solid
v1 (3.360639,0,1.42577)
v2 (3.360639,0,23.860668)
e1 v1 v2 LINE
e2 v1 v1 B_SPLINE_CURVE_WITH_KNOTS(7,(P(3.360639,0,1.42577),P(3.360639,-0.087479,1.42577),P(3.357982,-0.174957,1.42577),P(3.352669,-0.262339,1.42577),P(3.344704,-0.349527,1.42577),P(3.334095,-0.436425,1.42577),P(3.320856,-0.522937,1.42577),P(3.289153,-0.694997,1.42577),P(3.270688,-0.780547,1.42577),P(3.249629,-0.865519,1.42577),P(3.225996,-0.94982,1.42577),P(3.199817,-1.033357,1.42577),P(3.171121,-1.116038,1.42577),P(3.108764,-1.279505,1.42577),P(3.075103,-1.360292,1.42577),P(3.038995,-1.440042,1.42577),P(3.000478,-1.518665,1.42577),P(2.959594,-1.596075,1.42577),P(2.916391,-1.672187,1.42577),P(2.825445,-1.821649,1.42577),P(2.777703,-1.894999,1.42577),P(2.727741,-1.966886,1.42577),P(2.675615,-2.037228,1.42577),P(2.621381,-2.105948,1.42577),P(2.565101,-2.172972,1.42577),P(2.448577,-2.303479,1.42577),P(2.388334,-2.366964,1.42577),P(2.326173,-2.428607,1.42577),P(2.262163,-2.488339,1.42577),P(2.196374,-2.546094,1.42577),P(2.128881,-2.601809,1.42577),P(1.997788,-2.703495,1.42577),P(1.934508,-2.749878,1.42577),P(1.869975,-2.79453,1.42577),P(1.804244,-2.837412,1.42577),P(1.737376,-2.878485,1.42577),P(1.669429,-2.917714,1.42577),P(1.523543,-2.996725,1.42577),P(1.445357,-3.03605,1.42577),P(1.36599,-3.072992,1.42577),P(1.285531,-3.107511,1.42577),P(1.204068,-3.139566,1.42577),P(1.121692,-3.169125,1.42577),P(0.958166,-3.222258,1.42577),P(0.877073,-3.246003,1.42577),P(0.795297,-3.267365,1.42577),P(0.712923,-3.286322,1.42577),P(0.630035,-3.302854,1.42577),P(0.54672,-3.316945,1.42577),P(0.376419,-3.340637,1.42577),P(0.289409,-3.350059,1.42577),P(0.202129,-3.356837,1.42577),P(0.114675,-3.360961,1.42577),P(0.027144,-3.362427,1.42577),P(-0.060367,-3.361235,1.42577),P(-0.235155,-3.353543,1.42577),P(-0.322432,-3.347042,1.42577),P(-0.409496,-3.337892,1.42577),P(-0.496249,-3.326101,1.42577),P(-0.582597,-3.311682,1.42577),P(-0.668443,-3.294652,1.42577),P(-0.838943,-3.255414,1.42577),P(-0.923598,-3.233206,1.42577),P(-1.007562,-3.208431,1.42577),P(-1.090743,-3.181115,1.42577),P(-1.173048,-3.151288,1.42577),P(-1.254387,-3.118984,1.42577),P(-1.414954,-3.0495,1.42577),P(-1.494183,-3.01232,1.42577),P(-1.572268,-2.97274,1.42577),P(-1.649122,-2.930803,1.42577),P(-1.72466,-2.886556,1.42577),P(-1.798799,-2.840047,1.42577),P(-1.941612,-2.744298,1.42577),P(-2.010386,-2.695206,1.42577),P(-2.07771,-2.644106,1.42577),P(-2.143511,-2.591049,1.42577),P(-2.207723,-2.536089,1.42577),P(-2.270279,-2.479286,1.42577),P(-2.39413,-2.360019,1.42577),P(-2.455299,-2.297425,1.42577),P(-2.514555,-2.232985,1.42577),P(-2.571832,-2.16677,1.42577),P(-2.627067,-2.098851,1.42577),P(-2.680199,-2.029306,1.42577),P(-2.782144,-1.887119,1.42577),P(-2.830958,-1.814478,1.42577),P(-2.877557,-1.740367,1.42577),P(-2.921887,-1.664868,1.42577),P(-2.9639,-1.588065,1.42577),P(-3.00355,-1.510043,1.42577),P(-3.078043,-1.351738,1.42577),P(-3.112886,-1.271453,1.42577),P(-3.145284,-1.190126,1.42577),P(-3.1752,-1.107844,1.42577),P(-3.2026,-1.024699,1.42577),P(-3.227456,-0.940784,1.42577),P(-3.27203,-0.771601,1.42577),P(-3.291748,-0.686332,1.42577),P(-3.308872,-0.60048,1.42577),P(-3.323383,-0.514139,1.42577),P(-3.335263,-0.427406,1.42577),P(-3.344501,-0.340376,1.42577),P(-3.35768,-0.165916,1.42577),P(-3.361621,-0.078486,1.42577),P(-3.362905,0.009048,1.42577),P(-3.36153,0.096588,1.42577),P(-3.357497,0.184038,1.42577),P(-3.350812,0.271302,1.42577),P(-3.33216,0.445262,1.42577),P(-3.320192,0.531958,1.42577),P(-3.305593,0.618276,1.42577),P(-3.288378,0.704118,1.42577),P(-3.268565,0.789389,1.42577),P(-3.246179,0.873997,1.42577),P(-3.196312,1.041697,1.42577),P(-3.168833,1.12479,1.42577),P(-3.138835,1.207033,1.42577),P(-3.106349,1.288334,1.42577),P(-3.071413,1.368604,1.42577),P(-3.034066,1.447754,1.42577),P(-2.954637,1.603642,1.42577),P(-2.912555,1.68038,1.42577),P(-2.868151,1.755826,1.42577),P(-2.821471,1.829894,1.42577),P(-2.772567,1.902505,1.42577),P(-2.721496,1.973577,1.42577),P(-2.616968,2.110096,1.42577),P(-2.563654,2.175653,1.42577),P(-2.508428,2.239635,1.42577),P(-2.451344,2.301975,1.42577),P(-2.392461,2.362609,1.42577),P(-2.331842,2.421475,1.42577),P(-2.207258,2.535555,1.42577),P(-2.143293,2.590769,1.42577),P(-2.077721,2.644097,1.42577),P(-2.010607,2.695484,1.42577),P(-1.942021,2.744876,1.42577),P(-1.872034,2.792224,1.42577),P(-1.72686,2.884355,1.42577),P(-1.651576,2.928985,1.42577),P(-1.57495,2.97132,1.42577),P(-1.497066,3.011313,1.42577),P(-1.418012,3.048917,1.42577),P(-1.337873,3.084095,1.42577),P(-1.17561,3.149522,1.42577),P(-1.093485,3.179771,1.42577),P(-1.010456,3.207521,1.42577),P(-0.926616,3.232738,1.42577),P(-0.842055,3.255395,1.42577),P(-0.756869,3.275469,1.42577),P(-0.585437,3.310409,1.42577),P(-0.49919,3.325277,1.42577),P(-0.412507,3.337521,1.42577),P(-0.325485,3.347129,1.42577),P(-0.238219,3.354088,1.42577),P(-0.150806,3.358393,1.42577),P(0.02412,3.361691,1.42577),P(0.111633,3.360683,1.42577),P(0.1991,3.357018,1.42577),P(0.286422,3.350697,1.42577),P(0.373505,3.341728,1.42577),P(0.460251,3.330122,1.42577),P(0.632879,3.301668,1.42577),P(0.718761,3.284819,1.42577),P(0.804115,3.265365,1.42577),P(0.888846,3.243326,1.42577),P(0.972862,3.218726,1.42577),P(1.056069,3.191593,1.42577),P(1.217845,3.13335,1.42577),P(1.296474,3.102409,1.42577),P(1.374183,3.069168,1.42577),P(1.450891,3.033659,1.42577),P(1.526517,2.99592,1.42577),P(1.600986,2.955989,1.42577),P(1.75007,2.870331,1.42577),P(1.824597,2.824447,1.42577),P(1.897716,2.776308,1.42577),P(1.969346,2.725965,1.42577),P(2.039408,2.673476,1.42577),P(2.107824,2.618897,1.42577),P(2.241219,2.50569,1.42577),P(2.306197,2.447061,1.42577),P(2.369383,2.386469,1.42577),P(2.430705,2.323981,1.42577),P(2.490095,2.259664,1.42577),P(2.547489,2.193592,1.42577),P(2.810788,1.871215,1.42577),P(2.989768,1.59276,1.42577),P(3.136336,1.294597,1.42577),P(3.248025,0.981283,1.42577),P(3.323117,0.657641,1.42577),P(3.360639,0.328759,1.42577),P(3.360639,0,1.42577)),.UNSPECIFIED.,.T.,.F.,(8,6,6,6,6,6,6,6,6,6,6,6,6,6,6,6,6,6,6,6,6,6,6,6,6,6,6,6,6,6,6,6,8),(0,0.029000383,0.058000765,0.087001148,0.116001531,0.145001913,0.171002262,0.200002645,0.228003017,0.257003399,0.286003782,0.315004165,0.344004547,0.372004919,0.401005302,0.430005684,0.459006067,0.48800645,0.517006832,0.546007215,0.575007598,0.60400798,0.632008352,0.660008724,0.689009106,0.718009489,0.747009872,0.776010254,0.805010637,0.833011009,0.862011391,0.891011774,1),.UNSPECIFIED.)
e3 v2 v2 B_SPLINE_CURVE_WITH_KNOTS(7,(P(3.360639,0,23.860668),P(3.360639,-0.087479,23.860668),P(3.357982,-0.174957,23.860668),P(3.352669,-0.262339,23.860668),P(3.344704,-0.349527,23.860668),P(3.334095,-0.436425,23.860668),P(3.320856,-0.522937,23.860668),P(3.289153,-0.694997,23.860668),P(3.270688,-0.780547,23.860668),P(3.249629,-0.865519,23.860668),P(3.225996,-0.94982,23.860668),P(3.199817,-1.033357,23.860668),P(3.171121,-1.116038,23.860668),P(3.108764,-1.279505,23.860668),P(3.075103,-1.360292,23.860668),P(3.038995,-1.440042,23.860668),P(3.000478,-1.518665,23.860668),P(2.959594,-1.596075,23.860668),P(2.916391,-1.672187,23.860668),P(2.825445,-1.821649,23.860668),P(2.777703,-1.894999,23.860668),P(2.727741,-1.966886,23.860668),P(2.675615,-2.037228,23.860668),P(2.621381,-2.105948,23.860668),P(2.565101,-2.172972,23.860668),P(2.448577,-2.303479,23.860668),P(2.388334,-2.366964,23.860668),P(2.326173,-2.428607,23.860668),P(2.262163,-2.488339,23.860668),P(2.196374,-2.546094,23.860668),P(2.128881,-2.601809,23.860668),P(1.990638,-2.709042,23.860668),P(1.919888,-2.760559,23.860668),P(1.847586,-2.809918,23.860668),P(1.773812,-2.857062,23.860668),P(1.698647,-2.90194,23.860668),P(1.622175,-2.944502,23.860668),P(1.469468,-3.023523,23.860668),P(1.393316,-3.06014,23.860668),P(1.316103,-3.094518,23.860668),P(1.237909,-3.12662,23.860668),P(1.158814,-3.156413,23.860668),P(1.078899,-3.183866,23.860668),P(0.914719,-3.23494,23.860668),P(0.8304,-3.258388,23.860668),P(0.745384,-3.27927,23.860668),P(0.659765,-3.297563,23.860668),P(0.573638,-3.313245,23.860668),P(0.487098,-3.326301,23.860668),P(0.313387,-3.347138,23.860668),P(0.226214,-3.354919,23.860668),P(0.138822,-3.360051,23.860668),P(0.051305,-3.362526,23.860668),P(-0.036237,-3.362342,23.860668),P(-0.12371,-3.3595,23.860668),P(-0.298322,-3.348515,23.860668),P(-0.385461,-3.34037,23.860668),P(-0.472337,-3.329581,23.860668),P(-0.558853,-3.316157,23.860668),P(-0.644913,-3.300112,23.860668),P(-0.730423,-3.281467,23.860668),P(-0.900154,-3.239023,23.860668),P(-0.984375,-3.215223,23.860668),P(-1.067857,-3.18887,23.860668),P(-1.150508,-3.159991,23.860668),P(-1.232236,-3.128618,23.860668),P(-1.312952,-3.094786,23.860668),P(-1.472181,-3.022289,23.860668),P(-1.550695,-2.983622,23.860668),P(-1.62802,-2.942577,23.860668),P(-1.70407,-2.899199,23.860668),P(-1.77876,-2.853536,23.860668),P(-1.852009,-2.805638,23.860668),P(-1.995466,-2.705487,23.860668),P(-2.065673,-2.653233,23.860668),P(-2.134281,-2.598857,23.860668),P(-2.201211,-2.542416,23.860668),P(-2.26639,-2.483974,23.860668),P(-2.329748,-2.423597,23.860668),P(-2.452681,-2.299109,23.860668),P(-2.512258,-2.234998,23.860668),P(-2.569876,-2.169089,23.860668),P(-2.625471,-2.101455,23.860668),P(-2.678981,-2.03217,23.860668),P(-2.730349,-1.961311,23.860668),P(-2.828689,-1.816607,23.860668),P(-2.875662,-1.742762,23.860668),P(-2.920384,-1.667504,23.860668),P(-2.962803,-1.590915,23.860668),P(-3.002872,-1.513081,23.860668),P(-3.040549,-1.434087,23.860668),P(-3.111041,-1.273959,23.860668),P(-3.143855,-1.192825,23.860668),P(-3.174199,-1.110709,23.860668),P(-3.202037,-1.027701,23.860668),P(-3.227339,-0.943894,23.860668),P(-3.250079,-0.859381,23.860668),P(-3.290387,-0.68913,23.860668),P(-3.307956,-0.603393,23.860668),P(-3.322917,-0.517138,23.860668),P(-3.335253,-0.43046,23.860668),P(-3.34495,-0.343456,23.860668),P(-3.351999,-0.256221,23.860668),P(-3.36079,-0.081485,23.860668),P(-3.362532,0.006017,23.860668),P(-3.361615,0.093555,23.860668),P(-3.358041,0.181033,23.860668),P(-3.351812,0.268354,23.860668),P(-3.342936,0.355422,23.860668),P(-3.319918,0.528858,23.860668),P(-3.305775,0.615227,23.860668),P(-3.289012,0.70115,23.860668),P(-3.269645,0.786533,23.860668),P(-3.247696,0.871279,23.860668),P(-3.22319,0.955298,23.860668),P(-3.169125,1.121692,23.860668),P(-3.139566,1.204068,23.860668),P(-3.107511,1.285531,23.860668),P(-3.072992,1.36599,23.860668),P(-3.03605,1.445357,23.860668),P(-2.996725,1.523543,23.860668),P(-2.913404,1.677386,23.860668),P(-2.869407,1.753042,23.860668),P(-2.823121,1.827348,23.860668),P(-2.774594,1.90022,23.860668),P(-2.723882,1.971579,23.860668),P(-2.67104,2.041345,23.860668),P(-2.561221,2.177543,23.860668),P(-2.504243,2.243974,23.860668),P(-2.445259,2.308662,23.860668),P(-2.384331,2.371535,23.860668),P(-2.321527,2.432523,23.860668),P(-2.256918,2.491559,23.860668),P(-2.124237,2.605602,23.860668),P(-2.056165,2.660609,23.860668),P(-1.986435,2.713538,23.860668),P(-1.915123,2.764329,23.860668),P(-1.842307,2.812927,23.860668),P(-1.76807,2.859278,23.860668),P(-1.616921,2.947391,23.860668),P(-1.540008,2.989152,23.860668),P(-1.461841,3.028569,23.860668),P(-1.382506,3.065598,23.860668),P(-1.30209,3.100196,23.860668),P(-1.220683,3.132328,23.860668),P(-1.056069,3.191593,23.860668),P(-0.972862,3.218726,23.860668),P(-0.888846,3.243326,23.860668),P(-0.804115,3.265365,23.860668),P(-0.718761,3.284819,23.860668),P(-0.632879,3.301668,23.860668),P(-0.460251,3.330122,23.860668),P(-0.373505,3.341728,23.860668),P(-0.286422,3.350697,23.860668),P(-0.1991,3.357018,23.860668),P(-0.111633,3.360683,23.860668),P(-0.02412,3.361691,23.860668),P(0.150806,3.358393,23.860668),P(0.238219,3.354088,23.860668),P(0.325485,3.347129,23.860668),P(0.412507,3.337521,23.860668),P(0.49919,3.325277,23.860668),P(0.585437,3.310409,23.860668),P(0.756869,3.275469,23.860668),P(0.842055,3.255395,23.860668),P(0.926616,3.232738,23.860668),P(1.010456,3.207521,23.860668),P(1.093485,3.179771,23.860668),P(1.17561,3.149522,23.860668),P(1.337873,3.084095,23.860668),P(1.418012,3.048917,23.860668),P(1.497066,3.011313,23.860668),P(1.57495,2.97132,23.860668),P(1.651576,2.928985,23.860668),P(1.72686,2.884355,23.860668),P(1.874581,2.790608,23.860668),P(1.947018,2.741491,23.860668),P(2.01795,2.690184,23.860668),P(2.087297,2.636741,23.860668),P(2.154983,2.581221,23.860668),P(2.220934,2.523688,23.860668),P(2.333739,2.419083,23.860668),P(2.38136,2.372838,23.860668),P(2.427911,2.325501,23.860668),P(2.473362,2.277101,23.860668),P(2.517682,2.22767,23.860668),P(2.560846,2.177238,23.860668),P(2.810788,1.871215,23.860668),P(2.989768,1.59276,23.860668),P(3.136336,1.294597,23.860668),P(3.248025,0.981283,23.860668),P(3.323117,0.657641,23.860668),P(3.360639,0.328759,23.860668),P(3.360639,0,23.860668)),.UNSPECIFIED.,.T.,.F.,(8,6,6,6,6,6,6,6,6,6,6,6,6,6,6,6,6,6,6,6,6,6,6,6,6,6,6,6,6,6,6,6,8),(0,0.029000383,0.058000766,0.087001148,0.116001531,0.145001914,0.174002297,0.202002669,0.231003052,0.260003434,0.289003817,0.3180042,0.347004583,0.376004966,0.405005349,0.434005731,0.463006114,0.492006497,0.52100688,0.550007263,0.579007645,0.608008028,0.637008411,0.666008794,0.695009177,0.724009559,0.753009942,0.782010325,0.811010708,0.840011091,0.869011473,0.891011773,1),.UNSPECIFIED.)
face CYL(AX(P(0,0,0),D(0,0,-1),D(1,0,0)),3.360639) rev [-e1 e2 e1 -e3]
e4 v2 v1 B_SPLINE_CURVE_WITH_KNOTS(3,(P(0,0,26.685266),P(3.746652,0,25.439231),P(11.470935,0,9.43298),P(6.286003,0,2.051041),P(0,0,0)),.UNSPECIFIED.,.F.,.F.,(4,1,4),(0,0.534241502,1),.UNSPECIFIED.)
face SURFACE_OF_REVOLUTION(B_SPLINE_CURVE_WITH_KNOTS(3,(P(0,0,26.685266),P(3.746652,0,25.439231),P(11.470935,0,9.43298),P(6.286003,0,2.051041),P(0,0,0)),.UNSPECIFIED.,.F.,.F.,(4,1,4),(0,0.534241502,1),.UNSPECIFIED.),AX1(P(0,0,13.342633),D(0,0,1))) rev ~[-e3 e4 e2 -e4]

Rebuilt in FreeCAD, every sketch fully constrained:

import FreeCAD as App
import Part
import Sketcher
from FreeCAD import Vector

doc = App.newDocument("Part")
body = doc.addObject("PartDesign::Body", "Body")

# Sketch on XZ plane
sketch1 = body.newObject("Sketcher::SketchObject", "Sketch")
sketch1.AttachmentSupport = (doc.getObject("XZ_Plane"), [""])
sketch1.MapMode = "FlatFace"
sketch1.addGeometry([
    Part.LineSegment(Vector(0, 26.685266, 0), Vector(0, 0, 0)),
    Part.BSplineCurve([Vector(0, 26.685266, 0), Vector(3.746652, 25.439231, 0), Vector(11.470935, 9.43298, 0), Vector(6.286003, 2.051041, 0), Vector(0, 0, 0)], [4, 1, 4], [0, 0.534241502, 1], False, 3, [1, 1, 1, 1, 1], False),
], False)
sketch1.addConstraint([
    Sketcher.Constraint("Block", 1),
    Sketcher.Constraint("Coincident", 0, 1, 1, 1),
    Sketcher.Constraint("Coincident", 1, 2, 0, 2),
])
revolution = body.newObject("PartDesign::Revolution", "Revolution")
revolution.Profile = sketch1
revolution.ReferenceAxis = (sketch1, ["V_Axis"])
revolution.Angle = 360

# Sketch on XY plane
sketch2 = body.newObject("Sketcher::SketchObject", "Sketch001")
sketch2.AttachmentSupport = (doc.getObject("XY_Plane"), [""])
sketch2.MapMode = "FlatFace"
sketch2.addGeometry(Part.Circle(Vector(0, 0, 0), Vector(0, 0, 1), 3.4), False)
sketch2.addConstraint([
    Sketcher.Constraint("Coincident", 0, 3, -1, 1),
    Sketcher.Constraint("Diameter", 0, 6.721278),
])
pocket1 = body.newObject("PartDesign::Pocket", "Pocket")
pocket1.Profile = sketch2
pocket1.Type = "ThroughAll"
pocket1.Reversed = True

doc.recompute()
